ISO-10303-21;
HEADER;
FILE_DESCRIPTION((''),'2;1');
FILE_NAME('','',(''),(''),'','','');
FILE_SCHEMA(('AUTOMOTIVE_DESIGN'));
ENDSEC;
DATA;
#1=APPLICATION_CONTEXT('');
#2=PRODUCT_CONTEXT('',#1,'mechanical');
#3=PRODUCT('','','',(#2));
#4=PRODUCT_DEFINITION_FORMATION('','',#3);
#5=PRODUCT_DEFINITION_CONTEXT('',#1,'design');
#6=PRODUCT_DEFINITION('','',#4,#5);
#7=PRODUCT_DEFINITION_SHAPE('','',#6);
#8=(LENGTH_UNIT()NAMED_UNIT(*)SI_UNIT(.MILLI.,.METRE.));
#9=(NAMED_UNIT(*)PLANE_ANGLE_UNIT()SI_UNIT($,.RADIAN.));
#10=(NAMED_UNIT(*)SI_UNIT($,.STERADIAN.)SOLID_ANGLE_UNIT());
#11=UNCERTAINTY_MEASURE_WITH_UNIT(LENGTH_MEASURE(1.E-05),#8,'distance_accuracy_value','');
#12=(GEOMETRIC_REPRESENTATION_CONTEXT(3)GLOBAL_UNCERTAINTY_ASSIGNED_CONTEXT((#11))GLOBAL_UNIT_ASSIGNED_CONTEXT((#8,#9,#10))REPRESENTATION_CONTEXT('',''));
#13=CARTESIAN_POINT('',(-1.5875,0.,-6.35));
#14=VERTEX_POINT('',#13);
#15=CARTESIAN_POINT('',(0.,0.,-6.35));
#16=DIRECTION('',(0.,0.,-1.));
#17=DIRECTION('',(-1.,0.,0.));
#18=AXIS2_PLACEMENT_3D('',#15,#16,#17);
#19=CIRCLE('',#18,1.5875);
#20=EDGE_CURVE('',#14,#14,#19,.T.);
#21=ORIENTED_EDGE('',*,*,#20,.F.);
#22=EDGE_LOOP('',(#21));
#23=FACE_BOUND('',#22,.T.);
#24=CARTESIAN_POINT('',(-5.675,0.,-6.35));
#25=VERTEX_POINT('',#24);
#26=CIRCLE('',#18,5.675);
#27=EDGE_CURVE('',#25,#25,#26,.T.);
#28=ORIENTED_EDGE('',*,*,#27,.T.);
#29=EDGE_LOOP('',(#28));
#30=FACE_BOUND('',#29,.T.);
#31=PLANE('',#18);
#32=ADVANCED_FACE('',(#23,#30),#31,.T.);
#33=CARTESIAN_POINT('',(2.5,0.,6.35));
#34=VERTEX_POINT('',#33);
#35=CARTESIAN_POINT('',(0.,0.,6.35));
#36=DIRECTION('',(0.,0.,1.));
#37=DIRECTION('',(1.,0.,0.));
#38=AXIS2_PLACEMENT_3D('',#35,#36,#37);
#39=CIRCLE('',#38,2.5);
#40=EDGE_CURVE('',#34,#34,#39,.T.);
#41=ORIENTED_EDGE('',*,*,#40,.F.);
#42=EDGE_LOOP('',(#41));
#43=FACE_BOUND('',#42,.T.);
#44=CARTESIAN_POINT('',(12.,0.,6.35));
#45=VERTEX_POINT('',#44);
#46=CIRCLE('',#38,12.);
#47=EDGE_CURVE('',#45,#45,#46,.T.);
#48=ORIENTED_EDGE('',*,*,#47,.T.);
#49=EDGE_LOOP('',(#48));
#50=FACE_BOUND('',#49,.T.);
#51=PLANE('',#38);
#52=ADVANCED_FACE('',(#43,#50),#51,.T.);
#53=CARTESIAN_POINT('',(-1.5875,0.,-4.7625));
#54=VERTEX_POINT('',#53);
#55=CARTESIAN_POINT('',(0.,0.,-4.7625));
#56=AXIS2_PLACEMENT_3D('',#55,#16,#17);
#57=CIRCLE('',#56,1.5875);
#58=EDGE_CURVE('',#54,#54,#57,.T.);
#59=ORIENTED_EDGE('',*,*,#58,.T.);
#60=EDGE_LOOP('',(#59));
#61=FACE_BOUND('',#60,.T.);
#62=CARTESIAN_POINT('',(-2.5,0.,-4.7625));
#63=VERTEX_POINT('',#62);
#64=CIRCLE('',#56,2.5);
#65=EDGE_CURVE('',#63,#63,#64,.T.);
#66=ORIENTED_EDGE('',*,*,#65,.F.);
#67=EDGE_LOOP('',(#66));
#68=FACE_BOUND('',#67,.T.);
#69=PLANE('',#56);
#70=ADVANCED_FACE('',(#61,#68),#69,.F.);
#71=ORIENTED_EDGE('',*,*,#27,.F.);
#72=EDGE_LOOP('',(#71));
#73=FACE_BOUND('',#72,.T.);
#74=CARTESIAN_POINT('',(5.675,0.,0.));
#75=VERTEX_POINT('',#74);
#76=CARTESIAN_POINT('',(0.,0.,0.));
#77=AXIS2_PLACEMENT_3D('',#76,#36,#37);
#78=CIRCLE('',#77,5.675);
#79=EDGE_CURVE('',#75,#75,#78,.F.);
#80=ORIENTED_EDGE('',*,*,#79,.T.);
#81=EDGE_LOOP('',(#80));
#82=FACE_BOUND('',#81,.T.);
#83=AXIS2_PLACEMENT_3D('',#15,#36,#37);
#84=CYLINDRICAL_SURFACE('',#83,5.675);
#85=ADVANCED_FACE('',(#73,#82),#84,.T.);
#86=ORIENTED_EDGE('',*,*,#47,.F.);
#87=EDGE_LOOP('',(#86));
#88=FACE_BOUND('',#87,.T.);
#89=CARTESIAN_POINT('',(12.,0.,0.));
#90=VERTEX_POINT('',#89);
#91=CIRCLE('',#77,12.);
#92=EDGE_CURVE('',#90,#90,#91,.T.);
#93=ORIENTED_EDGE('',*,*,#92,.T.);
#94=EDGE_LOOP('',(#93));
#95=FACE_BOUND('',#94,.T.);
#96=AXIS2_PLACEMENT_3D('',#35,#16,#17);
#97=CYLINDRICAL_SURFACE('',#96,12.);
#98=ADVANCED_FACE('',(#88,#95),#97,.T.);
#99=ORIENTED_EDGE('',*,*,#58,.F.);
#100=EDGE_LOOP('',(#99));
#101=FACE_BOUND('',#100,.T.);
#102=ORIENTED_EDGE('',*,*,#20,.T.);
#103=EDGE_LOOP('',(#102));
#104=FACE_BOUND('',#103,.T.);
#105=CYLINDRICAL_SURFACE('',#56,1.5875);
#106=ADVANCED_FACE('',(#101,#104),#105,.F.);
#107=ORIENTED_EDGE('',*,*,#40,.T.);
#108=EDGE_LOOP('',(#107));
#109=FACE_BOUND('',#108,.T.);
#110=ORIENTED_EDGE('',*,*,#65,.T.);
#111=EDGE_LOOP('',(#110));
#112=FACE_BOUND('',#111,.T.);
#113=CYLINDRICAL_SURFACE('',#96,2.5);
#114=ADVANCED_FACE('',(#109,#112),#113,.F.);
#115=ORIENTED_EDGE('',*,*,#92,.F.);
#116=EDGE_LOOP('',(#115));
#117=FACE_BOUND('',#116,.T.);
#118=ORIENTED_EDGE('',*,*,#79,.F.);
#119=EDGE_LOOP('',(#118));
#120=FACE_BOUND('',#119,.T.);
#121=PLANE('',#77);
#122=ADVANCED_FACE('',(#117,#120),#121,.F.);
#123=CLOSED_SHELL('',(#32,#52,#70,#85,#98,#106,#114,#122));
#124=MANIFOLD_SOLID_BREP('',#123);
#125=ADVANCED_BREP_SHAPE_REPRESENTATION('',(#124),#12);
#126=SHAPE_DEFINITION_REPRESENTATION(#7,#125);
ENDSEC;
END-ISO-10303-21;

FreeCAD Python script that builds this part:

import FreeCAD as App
import Part
import Sketcher

V = App.Vector
Q = App.Units.Quantity

doc = App.newDocument("Part")
params = doc.addObject("Spreadsheet::Sheet", "Params")
for row, (alias, value) in enumerate([
    ("pad1_length", "0.25 in"),
    ("pad2_length", "0.25 in"),
    ("sketch3_diameter", "0.125 in"),
    ("pad3_length", "0.0625 in"),
], start=1):
    params.set(f"A{row}", alias)
    params.set(f"B{row}", "=" + value)
    params.setAlias(f"B{row}", alias)

body = doc.addObject("PartDesign::Body", "Body")

# Sketch on XY plane
sketch1 = body.newObject("Sketcher::SketchObject", "Sketch")
sketch1.AttachmentSupport = (doc.getObject("XY_Plane"), [""])
sketch1.MapMode = "FlatFace"
sketch1.addGeometry(Part.Circle(V(0, 0, 0), V(0, 0, 1), 12), False)
sketch1.addGeometry(Part.Circle(V(0, 0, 0), V(0, 0, 1), 2.5), False)
sketch1.addConstraint(Sketcher.Constraint("Coincident", 0, 3, -1, 1))
sketch1.addConstraint(Sketcher.Constraint("Coincident", 1, 3, -1, 1))
sketch1.addConstraint(Sketcher.Constraint("Diameter", 0, 24.0))
sketch1.addConstraint(Sketcher.Constraint("Diameter", 1, 5.0))
pad1 = body.newObject("PartDesign::Pad", "Pad")
pad1.Profile = sketch1
pad1.setExpression("Length", "Params.pad1_length")

# Sketch on XY plane
sketch2 = body.newObject("Sketcher::SketchObject", "Sketch001")
sketch2.AttachmentSupport = (doc.getObject("XY_Plane"), [""])
sketch2.MapMode = "FlatFace"
sketch2.addGeometry(Part.Circle(V(0, 0, 0), V(0, 0, 1), 5.7), False)
sketch2.addGeometry(Part.Circle(V(0, 0, 0), V(0, 0, 1), 2.5), False)
sketch2.addConstraint(Sketcher.Constraint("Coincident", 0, 3, -1, 1))
sketch2.addConstraint(Sketcher.Constraint("Coincident", 1, 3, -1, 1))
sketch2.addConstraint(Sketcher.Constraint("Diameter", 0, 11.35))
sketch2.addConstraint(Sketcher.Constraint("Diameter", 1, 5.0))
pad2 = body.newObject("PartDesign::Pad", "Pad001")
pad2.Profile = sketch2
pad2.setExpression("Length", "Params.pad2_length")
pad2.Reversed = True

# Sketch on XY plane
sketch3 = body.newObject("Sketcher::SketchObject", "Sketch002")
sketch3.AttachmentSupport = (doc.getObject("XY_Plane"), [""])
sketch3.MapMode = "FlatFace"
sketch3.AttachmentOffset = App.Placement(V(0, 0, -0.25 * 25.4), App.Rotation())
sketch3.addGeometry(Part.Circle(V(0, 0, 0), V(0, 0, 1), 5.7), False)
sketch3.addGeometry(Part.Circle(V(0, 0, 0), V(0, 0, 1), 1.6), False)
sketch3.addConstraint(Sketcher.Constraint("Coincident", 0, 3, -1, 1))
sketch3.addConstraint(Sketcher.Constraint("Coincident", 1, 3, -1, 1))
sketch3.addConstraint(Sketcher.Constraint("Diameter", 1, Q("0.125 in")))
sketch3.addConstraint(Sketcher.Constraint("Diameter", 0, 11.35))
sketch3.setExpression("Constraints[2]", "Params.sketch3_diameter")
pad3 = body.newObject("PartDesign::Pad", "Pad002")
pad3.Profile = sketch3
pad3.setExpression("Length", "Params.pad3_length")

doc.recompute()
